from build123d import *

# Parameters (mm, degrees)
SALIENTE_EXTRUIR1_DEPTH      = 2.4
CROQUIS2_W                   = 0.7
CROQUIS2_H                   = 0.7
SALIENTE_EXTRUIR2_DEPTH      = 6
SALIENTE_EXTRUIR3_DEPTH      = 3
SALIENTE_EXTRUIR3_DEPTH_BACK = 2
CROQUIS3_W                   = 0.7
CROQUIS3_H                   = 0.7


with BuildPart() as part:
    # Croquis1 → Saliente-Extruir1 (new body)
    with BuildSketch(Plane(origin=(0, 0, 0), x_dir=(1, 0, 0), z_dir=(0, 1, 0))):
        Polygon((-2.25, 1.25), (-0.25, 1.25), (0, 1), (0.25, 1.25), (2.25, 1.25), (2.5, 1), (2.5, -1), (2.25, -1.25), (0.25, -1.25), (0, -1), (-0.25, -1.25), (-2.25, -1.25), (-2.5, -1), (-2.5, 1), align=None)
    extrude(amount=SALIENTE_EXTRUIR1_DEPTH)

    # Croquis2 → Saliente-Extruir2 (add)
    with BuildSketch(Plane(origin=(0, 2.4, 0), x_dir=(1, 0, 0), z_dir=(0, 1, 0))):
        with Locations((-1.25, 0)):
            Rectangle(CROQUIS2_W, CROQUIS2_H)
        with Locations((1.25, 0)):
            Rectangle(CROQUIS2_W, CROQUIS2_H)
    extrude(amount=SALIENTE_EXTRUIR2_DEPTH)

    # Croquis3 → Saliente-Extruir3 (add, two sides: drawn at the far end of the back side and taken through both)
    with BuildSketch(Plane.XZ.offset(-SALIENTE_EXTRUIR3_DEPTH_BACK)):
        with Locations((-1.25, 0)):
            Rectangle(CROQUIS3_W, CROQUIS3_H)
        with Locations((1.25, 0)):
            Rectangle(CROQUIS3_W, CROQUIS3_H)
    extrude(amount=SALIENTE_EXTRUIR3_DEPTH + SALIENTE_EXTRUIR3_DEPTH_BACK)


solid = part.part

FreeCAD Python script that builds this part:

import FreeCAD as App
import Part
import Sketcher
Q = App.Units.Quantity


def add_polygon(sketch, points):
    """Adds a closed chain of lines whose ends are joined by coincident constraints."""
    first, n = sketch.GeometryCount, len(points)
    for a, b in zip(points, points[1:] + points[:1]):
        sketch.addGeometry(Part.LineSegment(App.Vector(*a, 0), App.Vector(*b, 0)), False)
    for i in range(n):
        sketch.addConstraint(Sketcher.Constraint("Coincident", first + i, 2, first + (i + 1) % n, 1))

doc = App.newDocument("Part")
body = doc.addObject("PartDesign::Body", "Body")

# Sketch on XZ plane
sketch1 = body.newObject("Sketcher::SketchObject", "Sketch")
sketch1.AttachmentSupport = (doc.getObject("XZ_Plane"), [""])
sketch1.MapMode = "FlatFace"
add_polygon(sketch1, [(-0.25, -1.25), (-2.25, -1.25), (-2.5, -1), (-2.5, 1), (-2.25, 1.25), (-0.25, 1.25), (0, 1), (0.25, 1.25), (2.25, 1.25), (2.5, 1), (2.5, -1), (2.25, -1.25), (0.25, -1.25), (0, -1)])  # lines 0-13
sketch1.addConstraint(Sketcher.Constraint("Horizontal", 0))
sketch1.addConstraint(Sketcher.Constraint("Vertical", 2))
sketch1.addConstraint(Sketcher.Constraint("Horizontal", 4))
sketch1.addConstraint(Sketcher.Constraint("Horizontal", 7))
sketch1.addConstraint(Sketcher.Constraint("Vertical", 9))
sketch1.addConstraint(Sketcher.Constraint("Horizontal", 11))
sketch1.addConstraint(Sketcher.Constraint("Symmetric", 0, 2, 7, 2, -1, 1))
sketch1.addConstraint(Sketcher.Constraint("Symmetric", 1, 2, 8, 2, -1, 1))
sketch1.addConstraint(Sketcher.Constraint("Symmetric", 3, 2, 10, 2, -1, 1))
sketch1.addConstraint(Sketcher.Constraint("Symmetric", 5, 2, 12, 2, -1, 1))
sketch1.addConstraint(Sketcher.Constraint("Symmetric", 4, 2, 6, 2, -2))
sketch1.addConstraint(Sketcher.Constraint("PointOnObject", 5, 2, -2))
sketch1.addConstraint(Sketcher.Constraint("Perpendicular", 1, 3))
sketch1.addConstraint(Sketcher.Constraint("Perpendicular", 3, 5))
sketch1.addConstraint(Sketcher.Constraint("Perpendicular", 5, 6))
sketch1.addConstraint(Sketcher.Constraint("Perpendicular", 8, 10))
sketch1.addConstraint(Sketcher.Constraint("Perpendicular", 10, 12))
sketch1.addConstraint(Sketcher.Constraint("Perpendicular", 12, 13))
sketch1.addConstraint(Sketcher.Constraint("Horizontal", 2, 2, 5, 2))
sketch1.addConstraint(Sketcher.Constraint("Horizontal", 5, 2, 8, 2))
sketch1.addConstraint(Sketcher.Constraint("Equal", 11, 2))
sketch1.addConstraint(Sketcher.Constraint("DistanceX", 0, 2, 0, 1, Q("2 mm")))
sketch1.addConstraint(Sketcher.Constraint("DistanceX", 1, 2, -1, 1, Q("2.5 mm")))
pad1 = body.newObject("PartDesign::Pad", "Pad")
pad1.Profile = sketch1
pad1.Length = 2.4
pad1.Reversed = True

# Sketch on XZ plane
sketch2 = body.newObject("Sketcher::SketchObject", "Sketch001")
sketch2.AttachmentSupport = (doc.getObject("XZ_Plane"), [""])
sketch2.MapMode = "FlatFace"
sketch2.AttachmentOffset = App.Placement(App.Vector(0, 0, -2.4), App.Rotation())
add_polygon(sketch2, [(-1.6, -0.3), (-1.6, 0.3), (-0.9, 0.3), (-0.9, -0.3)])  # lines 0-3
add_polygon(sketch2, [(0.9, -0.3), (0.9, 0.3), (1.6, 0.3), (1.6, -0.3)])  # lines 4-7
sketch2.addConstraint(Sketcher.Constraint("Vertical", 0))
sketch2.addConstraint(Sketcher.Constraint("Horizontal", 1))
sketch2.addConstraint(Sketcher.Constraint("Vertical", 2))
sketch2.addConstraint(Sketcher.Constraint("Horizontal", 3))
sketch2.addConstraint(Sketcher.Constraint("Vertical", 4))
sketch2.addConstraint(Sketcher.Constraint("Horizontal", 5))
sketch2.addConstraint(Sketcher.Constraint("Vertical", 6))
sketch2.addConstraint(Sketcher.Constraint("Horizontal", 7))
sketch2.addConstraint(Sketcher.Constraint("Symmetric", 2, 2, 4, 2, -1, 1))
sketch2.addConstraint(Sketcher.Constraint("Symmetric", 0, 2, 6, 2, -1, 1))
sketch2.addConstraint(Sketcher.Constraint("Horizontal", 1, 2, 4, 2))
sketch2.addConstraint(Sketcher.Constraint("Equal", 7, 0))
sketch2.addConstraint(Sketcher.Constraint("DistanceX", 1, 1, 1, 2, Q("0.7 mm")))
sketch2.addConstraint(Sketcher.Constraint("DistanceX", 0, 2, -1, 1, Q("1.6 mm")))
pad2 = body.newObject("PartDesign::Pad", "Pad001")
pad2.Profile = sketch2
pad2.Length = 6
pad2.Reversed = True

# Sketch on XZ plane
sketch3 = body.newObject("Sketcher::SketchObject", "Sketch002")
sketch3.AttachmentSupport = (doc.getObject("XZ_Plane"), [""])
sketch3.MapMode = "FlatFace"
add_polygon(sketch3, [(-1.6, 0.3), (-1.6, -0.3), (-0.9, -0.3), (-0.9, 0.3)])  # lines 0-3
add_polygon(sketch3, [(0.9, 0.3), (0.9, -0.3), (1.6, -0.3), (1.6, 0.3)])  # lines 4-7
sketch3.addConstraint(Sketcher.Constraint("Vertical", 0))
sketch3.addConstraint(Sketcher.Constraint("Horizontal", 1))
sketch3.addConstraint(Sketcher.Constraint("Vertical", 2))
sketch3.addConstraint(Sketcher.Constraint("Horizontal", 3))
sketch3.addConstraint(Sketcher.Constraint("Vertical", 4))
sketch3.addConstraint(Sketcher.Constraint("Horizontal", 5))
sketch3.addConstraint(Sketcher.Constraint("Vertical", 6))
sketch3.addConstraint(Sketcher.Constraint("Horizontal", 7))
sketch3.addConstraint(Sketcher.Constraint("Symmetric", 2, 2, 4, 2, -1, 1))
sketch3.addConstraint(Sketcher.Constraint("Symmetric", 0, 2, 6, 2, -1, 1))
sketch3.addConstraint(Sketcher.Constraint("Horizontal", 1, 2, 4, 2))
sketch3.addConstraint(Sketcher.Constraint("Equal", 7, 0))
sketch3.addConstraint(Sketcher.Constraint("DistanceX", 1, 1, 1, 2, Q("0.7 mm")))
sketch3.addConstraint(Sketcher.Constraint("DistanceX", 0, 2, -1, 1, Q("1.6 mm")))
pad3 = body.newObject("PartDesign::Pad", "Pad002")
pad3.Profile = sketch3
pad3.Type = "TwoLengths"
pad3.Length = 3
pad3.Length2 = 2

doc.recompute()
